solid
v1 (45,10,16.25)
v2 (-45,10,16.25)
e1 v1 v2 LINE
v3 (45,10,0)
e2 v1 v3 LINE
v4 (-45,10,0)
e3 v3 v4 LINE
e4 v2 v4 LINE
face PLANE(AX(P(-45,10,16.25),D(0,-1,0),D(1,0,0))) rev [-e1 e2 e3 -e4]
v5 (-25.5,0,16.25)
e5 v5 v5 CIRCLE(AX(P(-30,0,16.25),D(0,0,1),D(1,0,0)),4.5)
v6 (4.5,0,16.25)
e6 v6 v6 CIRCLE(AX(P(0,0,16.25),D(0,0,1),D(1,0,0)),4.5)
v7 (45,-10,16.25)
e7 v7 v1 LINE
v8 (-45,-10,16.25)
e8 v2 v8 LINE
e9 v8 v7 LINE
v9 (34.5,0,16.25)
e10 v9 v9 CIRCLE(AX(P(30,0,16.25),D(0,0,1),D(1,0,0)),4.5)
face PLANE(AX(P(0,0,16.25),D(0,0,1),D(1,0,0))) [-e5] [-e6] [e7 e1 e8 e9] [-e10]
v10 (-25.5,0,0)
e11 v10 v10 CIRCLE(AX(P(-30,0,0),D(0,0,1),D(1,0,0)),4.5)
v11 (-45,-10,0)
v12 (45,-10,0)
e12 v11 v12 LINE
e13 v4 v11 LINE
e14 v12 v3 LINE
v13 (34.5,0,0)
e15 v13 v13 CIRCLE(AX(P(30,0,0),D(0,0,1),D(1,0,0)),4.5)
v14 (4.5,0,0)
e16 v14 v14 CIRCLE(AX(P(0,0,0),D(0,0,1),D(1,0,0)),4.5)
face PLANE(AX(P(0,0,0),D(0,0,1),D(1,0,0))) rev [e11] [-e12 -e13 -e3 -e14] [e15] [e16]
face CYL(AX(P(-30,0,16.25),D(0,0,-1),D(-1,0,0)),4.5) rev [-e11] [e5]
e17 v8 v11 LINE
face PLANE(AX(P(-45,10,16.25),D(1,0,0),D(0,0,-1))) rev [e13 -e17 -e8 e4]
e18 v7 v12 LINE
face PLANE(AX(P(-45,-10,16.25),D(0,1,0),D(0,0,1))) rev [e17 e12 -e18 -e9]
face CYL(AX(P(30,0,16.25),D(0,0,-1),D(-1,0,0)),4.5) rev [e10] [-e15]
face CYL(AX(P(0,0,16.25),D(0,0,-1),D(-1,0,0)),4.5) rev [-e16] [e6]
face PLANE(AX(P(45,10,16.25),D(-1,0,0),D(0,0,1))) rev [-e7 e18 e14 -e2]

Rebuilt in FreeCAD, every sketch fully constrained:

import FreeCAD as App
import Part
import Sketcher
Q = App.Units.Quantity

doc = App.newDocument("Part")
body = doc.addObject("PartDesign::Body", "Body")

sketch1 = doc.addObject("Sketcher::SketchObject", "Sketch")
body.addObject(sketch1)
sketch1.AttachmentSupport = (doc.XY_Plane, [""])
sketch1.MapMode = "FlatFace"
sketch1.addGeometry([
    Part.LineSegment(App.Vector(-45, 10, 0), App.Vector(-45, -10, 0)),
    Part.LineSegment(App.Vector(-45, -10, 0), App.Vector(45, -10, 0)),
    Part.LineSegment(App.Vector(45, -10, 0), App.Vector(45, 10, 0)),
    Part.LineSegment(App.Vector(45, 10, 0), App.Vector(-45, 10, 0)),
    Part.Circle(App.Vector(-30, 0, 0), App.Vector(0, 0, 1), 4.5),
    Part.Circle(App.Vector(0, 0, 0), App.Vector(0, 0, 1), 4.5),
    Part.Circle(App.Vector(30, 0, 0), App.Vector(0, 0, 1), 4.5),
], False)
sketch1.addConstraint([
    Sketcher.Constraint("Coincident", 0, 2, 1, 1),
    Sketcher.Constraint("Coincident", 1, 2, 2, 1),
    Sketcher.Constraint("Coincident", 2, 2, 3, 1),
    Sketcher.Constraint("Coincident", 3, 2, 0, 1),
    Sketcher.Constraint("Vertical", 0),
    Sketcher.Constraint("Horizontal", 1),
    Sketcher.Constraint("Vertical", 2),
    Sketcher.Constraint("Horizontal", 3),
    Sketcher.Constraint("Coincident", 5, 3, -1, 1),
    Sketcher.Constraint("Equal", 4, 5),
    Sketcher.Constraint("Equal", 5, 6),
    Sketcher.Constraint("Symmetric", 4, 3, 6, 3, -1, 1),
    Sketcher.Constraint("Symmetric", 0, 2, 2, 2, -1, 1),
    Sketcher.Constraint("PointOnObject", 4, 3, -1),
    Sketcher.Constraint("Diameter", 4, Q("9 mm")),
    Sketcher.Constraint("DistanceX", 1, 1, 1, 2, Q("90 mm")),
    Sketcher.Constraint("DistanceY", 0, 2, 0, 1, Q("20 mm")),
    Sketcher.Constraint("DistanceX", 4, 3, -1, 1, Q("30 mm")),
])
pad1 = doc.addObject("PartDesign::Pad", "Pad")
body.addObject(pad1)
pad1.Profile = sketch1
pad1.Length = 16.25

doc.recompute()
